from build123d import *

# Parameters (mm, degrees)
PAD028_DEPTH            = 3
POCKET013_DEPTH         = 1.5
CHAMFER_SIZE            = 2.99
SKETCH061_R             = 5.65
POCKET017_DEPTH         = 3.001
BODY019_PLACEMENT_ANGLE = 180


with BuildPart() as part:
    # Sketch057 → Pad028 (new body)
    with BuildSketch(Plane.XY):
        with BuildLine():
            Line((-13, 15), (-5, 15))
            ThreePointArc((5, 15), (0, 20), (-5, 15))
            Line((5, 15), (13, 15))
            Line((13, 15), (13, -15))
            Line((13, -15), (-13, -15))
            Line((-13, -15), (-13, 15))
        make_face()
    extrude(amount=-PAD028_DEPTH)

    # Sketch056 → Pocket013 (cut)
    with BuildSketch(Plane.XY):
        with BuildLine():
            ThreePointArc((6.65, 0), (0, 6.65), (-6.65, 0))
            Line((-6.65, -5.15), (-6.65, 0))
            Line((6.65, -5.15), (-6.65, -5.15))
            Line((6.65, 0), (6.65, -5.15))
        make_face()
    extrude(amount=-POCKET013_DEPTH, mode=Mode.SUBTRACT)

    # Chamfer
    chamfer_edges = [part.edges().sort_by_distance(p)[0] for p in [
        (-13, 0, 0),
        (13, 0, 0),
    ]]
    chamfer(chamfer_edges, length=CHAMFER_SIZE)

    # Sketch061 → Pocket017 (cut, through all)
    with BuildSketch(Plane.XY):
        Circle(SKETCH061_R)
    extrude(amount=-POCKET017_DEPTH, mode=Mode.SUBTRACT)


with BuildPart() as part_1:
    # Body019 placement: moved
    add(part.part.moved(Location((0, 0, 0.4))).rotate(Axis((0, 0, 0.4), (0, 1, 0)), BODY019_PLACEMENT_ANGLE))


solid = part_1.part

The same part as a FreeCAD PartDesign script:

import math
import FreeCAD as App
import Part
import Sketcher

V = App.Vector


def edges_at(feature, points):
    """Names of the edges that pass closest to the given points."""
    edges = feature.Shape.Edges
    near = lambda p: min(range(len(edges)), key=lambda i: edges[i].distToShape(Part.Vertex(*p))[0])
    return sorted({f"Edge{near(p) + 1}" for p in points})

doc = App.newDocument("Part")
body = doc.addObject("PartDesign::Body", "Body")

# Sketch on XY plane
sketch1 = body.newObject("Sketcher::SketchObject", "Sketch")
sketch1.AttachmentSupport = (doc.getObject("XY_Plane"), [""])
sketch1.MapMode = "FlatFace"
sketch1.addGeometry([
    Part.LineSegment(V(-5, 15, 0), V(-13, 15, 0)),  # 0
    Part.LineSegment(V(-13, 15, 0), V(-13, -15, 0)),  # 1
    Part.LineSegment(V(-13, -15, 0), V(13, -15, 0)),  # 2
    Part.LineSegment(V(13, -15, 0), V(13, 15, 0)),  # 3
    Part.LineSegment(V(13, 15, 0), V(5, 15, 0)),  # 4
    Part.ArcOfCircle(Part.Circle(V(0, 15, 0), V(0, 0, 1), 5), math.radians(0), math.radians(180)),  # 5
], False)
sketch1.addConstraint([
    Sketcher.Constraint("Coincident", 0, 2, 1, 1),
    Sketcher.Constraint("Coincident", 1, 2, 2, 1),
    Sketcher.Constraint("Coincident", 2, 2, 3, 1),
    Sketcher.Constraint("Coincident", 3, 2, 4, 1),
    Sketcher.Constraint("Coincident", 4, 2, 5, 1),
    Sketcher.Constraint("Coincident", 5, 2, 0, 1),
    Sketcher.Constraint("Horizontal", 0),
    Sketcher.Constraint("Vertical", 1),
    Sketcher.Constraint("Horizontal", 2),
    Sketcher.Constraint("Vertical", 3),
    Sketcher.Constraint("Horizontal", 4),
    Sketcher.Constraint("Symmetric", 0, 2, 2, 2, -1, 1),
    Sketcher.Constraint("Symmetric", 4, 2, 5, 2, -2),
    Sketcher.Constraint("Horizontal", 5, 3, 0, 2),
    Sketcher.Constraint("Radius", 5, 5.0),
    Sketcher.Constraint("DistanceX", 0, 2, 0, 1, 8.0),
    Sketcher.Constraint("DistanceY", 1, 2, 1, 1, 30.0),
])
pad1 = body.newObject("PartDesign::Pad", "Pad")
pad1.Profile = sketch1
pad1.Length = 3
pad1.Reversed = True

# Sketch on XY plane
sketch2 = body.newObject("Sketcher::SketchObject", "Sketch001")
sketch2.AttachmentSupport = (doc.getObject("XY_Plane"), [""])
sketch2.MapMode = "FlatFace"
sketch2.addGeometry([
    Part.ArcOfCircle(Part.Circle(V(0, 0, 0), V(0, 0, 1), 7), math.radians(0), math.radians(180)),
    Part.LineSegment(V(-7, 0, 0), V(-7, -5, 0)),
    Part.LineSegment(V(-7, -5, 0), V(7, -5, 0)),
    Part.LineSegment(V(7, -5, 0), V(7, 0, 0)),
], False)
sketch2.addConstraint([
    Sketcher.Constraint("Tangent", 0, 2, 1, 1),
    Sketcher.Constraint("Coincident", 1, 2, 2, 1),
    Sketcher.Constraint("Coincident", 2, 2, 3, 1),
    Sketcher.Constraint("Tangent", 3, 2, 0, 1),
    Sketcher.Constraint("Vertical", 1),
    Sketcher.Constraint("Horizontal", 2),
    Sketcher.Constraint("Vertical", 3),
    Sketcher.Constraint("Coincident", 0, 3, -1, 1),
    Sketcher.Constraint("Radius", 0, 6.65),
    Sketcher.Constraint("DistanceY", 1, 2, 1, 1, 5.15),
])
pocket1 = body.newObject("PartDesign::Pocket", "Pocket")
pocket1.Profile = sketch2
pocket1.Length = 1.5
doc.recompute()

chamfer = body.newObject("PartDesign::Chamfer", "Chamfer")
chamfer.Base = (pocket1, edges_at(pocket1, [(-13, 0, 0), (13, 0, 0)]))
chamfer.Size = 2.99

# Sketch on XY plane
sketch3 = body.newObject("Sketcher::SketchObject", "Sketch002")
sketch3.AttachmentSupport = (doc.getObject("XY_Plane"), [""])
sketch3.MapMode = "FlatFace"
sketch3.addGeometry(Part.Circle(V(0, 0, 0), V(0, 0, 1), 6), False)
sketch3.addConstraint([
    Sketcher.Constraint("Coincident", 0, 3, -1, 1),
    Sketcher.Constraint("Diameter", 0, 11.3),
])
pocket2 = body.newObject("PartDesign::Pocket", "Pocket001")
pocket2.Profile = sketch3
pocket2.Type = "ThroughAll"
body2 = doc.addObject("PartDesign::Body", "Body001")
doc.recompute()

body.Placement = App.Placement(V(0, 0, 0.4), App.Rotation(V(0, 1, 0), 180))
boolean = body2.newObject("PartDesign::Boolean", "Boolean")
boolean.Type = "Fuse"
boolean.addObjects([body])

doc.recompute()
